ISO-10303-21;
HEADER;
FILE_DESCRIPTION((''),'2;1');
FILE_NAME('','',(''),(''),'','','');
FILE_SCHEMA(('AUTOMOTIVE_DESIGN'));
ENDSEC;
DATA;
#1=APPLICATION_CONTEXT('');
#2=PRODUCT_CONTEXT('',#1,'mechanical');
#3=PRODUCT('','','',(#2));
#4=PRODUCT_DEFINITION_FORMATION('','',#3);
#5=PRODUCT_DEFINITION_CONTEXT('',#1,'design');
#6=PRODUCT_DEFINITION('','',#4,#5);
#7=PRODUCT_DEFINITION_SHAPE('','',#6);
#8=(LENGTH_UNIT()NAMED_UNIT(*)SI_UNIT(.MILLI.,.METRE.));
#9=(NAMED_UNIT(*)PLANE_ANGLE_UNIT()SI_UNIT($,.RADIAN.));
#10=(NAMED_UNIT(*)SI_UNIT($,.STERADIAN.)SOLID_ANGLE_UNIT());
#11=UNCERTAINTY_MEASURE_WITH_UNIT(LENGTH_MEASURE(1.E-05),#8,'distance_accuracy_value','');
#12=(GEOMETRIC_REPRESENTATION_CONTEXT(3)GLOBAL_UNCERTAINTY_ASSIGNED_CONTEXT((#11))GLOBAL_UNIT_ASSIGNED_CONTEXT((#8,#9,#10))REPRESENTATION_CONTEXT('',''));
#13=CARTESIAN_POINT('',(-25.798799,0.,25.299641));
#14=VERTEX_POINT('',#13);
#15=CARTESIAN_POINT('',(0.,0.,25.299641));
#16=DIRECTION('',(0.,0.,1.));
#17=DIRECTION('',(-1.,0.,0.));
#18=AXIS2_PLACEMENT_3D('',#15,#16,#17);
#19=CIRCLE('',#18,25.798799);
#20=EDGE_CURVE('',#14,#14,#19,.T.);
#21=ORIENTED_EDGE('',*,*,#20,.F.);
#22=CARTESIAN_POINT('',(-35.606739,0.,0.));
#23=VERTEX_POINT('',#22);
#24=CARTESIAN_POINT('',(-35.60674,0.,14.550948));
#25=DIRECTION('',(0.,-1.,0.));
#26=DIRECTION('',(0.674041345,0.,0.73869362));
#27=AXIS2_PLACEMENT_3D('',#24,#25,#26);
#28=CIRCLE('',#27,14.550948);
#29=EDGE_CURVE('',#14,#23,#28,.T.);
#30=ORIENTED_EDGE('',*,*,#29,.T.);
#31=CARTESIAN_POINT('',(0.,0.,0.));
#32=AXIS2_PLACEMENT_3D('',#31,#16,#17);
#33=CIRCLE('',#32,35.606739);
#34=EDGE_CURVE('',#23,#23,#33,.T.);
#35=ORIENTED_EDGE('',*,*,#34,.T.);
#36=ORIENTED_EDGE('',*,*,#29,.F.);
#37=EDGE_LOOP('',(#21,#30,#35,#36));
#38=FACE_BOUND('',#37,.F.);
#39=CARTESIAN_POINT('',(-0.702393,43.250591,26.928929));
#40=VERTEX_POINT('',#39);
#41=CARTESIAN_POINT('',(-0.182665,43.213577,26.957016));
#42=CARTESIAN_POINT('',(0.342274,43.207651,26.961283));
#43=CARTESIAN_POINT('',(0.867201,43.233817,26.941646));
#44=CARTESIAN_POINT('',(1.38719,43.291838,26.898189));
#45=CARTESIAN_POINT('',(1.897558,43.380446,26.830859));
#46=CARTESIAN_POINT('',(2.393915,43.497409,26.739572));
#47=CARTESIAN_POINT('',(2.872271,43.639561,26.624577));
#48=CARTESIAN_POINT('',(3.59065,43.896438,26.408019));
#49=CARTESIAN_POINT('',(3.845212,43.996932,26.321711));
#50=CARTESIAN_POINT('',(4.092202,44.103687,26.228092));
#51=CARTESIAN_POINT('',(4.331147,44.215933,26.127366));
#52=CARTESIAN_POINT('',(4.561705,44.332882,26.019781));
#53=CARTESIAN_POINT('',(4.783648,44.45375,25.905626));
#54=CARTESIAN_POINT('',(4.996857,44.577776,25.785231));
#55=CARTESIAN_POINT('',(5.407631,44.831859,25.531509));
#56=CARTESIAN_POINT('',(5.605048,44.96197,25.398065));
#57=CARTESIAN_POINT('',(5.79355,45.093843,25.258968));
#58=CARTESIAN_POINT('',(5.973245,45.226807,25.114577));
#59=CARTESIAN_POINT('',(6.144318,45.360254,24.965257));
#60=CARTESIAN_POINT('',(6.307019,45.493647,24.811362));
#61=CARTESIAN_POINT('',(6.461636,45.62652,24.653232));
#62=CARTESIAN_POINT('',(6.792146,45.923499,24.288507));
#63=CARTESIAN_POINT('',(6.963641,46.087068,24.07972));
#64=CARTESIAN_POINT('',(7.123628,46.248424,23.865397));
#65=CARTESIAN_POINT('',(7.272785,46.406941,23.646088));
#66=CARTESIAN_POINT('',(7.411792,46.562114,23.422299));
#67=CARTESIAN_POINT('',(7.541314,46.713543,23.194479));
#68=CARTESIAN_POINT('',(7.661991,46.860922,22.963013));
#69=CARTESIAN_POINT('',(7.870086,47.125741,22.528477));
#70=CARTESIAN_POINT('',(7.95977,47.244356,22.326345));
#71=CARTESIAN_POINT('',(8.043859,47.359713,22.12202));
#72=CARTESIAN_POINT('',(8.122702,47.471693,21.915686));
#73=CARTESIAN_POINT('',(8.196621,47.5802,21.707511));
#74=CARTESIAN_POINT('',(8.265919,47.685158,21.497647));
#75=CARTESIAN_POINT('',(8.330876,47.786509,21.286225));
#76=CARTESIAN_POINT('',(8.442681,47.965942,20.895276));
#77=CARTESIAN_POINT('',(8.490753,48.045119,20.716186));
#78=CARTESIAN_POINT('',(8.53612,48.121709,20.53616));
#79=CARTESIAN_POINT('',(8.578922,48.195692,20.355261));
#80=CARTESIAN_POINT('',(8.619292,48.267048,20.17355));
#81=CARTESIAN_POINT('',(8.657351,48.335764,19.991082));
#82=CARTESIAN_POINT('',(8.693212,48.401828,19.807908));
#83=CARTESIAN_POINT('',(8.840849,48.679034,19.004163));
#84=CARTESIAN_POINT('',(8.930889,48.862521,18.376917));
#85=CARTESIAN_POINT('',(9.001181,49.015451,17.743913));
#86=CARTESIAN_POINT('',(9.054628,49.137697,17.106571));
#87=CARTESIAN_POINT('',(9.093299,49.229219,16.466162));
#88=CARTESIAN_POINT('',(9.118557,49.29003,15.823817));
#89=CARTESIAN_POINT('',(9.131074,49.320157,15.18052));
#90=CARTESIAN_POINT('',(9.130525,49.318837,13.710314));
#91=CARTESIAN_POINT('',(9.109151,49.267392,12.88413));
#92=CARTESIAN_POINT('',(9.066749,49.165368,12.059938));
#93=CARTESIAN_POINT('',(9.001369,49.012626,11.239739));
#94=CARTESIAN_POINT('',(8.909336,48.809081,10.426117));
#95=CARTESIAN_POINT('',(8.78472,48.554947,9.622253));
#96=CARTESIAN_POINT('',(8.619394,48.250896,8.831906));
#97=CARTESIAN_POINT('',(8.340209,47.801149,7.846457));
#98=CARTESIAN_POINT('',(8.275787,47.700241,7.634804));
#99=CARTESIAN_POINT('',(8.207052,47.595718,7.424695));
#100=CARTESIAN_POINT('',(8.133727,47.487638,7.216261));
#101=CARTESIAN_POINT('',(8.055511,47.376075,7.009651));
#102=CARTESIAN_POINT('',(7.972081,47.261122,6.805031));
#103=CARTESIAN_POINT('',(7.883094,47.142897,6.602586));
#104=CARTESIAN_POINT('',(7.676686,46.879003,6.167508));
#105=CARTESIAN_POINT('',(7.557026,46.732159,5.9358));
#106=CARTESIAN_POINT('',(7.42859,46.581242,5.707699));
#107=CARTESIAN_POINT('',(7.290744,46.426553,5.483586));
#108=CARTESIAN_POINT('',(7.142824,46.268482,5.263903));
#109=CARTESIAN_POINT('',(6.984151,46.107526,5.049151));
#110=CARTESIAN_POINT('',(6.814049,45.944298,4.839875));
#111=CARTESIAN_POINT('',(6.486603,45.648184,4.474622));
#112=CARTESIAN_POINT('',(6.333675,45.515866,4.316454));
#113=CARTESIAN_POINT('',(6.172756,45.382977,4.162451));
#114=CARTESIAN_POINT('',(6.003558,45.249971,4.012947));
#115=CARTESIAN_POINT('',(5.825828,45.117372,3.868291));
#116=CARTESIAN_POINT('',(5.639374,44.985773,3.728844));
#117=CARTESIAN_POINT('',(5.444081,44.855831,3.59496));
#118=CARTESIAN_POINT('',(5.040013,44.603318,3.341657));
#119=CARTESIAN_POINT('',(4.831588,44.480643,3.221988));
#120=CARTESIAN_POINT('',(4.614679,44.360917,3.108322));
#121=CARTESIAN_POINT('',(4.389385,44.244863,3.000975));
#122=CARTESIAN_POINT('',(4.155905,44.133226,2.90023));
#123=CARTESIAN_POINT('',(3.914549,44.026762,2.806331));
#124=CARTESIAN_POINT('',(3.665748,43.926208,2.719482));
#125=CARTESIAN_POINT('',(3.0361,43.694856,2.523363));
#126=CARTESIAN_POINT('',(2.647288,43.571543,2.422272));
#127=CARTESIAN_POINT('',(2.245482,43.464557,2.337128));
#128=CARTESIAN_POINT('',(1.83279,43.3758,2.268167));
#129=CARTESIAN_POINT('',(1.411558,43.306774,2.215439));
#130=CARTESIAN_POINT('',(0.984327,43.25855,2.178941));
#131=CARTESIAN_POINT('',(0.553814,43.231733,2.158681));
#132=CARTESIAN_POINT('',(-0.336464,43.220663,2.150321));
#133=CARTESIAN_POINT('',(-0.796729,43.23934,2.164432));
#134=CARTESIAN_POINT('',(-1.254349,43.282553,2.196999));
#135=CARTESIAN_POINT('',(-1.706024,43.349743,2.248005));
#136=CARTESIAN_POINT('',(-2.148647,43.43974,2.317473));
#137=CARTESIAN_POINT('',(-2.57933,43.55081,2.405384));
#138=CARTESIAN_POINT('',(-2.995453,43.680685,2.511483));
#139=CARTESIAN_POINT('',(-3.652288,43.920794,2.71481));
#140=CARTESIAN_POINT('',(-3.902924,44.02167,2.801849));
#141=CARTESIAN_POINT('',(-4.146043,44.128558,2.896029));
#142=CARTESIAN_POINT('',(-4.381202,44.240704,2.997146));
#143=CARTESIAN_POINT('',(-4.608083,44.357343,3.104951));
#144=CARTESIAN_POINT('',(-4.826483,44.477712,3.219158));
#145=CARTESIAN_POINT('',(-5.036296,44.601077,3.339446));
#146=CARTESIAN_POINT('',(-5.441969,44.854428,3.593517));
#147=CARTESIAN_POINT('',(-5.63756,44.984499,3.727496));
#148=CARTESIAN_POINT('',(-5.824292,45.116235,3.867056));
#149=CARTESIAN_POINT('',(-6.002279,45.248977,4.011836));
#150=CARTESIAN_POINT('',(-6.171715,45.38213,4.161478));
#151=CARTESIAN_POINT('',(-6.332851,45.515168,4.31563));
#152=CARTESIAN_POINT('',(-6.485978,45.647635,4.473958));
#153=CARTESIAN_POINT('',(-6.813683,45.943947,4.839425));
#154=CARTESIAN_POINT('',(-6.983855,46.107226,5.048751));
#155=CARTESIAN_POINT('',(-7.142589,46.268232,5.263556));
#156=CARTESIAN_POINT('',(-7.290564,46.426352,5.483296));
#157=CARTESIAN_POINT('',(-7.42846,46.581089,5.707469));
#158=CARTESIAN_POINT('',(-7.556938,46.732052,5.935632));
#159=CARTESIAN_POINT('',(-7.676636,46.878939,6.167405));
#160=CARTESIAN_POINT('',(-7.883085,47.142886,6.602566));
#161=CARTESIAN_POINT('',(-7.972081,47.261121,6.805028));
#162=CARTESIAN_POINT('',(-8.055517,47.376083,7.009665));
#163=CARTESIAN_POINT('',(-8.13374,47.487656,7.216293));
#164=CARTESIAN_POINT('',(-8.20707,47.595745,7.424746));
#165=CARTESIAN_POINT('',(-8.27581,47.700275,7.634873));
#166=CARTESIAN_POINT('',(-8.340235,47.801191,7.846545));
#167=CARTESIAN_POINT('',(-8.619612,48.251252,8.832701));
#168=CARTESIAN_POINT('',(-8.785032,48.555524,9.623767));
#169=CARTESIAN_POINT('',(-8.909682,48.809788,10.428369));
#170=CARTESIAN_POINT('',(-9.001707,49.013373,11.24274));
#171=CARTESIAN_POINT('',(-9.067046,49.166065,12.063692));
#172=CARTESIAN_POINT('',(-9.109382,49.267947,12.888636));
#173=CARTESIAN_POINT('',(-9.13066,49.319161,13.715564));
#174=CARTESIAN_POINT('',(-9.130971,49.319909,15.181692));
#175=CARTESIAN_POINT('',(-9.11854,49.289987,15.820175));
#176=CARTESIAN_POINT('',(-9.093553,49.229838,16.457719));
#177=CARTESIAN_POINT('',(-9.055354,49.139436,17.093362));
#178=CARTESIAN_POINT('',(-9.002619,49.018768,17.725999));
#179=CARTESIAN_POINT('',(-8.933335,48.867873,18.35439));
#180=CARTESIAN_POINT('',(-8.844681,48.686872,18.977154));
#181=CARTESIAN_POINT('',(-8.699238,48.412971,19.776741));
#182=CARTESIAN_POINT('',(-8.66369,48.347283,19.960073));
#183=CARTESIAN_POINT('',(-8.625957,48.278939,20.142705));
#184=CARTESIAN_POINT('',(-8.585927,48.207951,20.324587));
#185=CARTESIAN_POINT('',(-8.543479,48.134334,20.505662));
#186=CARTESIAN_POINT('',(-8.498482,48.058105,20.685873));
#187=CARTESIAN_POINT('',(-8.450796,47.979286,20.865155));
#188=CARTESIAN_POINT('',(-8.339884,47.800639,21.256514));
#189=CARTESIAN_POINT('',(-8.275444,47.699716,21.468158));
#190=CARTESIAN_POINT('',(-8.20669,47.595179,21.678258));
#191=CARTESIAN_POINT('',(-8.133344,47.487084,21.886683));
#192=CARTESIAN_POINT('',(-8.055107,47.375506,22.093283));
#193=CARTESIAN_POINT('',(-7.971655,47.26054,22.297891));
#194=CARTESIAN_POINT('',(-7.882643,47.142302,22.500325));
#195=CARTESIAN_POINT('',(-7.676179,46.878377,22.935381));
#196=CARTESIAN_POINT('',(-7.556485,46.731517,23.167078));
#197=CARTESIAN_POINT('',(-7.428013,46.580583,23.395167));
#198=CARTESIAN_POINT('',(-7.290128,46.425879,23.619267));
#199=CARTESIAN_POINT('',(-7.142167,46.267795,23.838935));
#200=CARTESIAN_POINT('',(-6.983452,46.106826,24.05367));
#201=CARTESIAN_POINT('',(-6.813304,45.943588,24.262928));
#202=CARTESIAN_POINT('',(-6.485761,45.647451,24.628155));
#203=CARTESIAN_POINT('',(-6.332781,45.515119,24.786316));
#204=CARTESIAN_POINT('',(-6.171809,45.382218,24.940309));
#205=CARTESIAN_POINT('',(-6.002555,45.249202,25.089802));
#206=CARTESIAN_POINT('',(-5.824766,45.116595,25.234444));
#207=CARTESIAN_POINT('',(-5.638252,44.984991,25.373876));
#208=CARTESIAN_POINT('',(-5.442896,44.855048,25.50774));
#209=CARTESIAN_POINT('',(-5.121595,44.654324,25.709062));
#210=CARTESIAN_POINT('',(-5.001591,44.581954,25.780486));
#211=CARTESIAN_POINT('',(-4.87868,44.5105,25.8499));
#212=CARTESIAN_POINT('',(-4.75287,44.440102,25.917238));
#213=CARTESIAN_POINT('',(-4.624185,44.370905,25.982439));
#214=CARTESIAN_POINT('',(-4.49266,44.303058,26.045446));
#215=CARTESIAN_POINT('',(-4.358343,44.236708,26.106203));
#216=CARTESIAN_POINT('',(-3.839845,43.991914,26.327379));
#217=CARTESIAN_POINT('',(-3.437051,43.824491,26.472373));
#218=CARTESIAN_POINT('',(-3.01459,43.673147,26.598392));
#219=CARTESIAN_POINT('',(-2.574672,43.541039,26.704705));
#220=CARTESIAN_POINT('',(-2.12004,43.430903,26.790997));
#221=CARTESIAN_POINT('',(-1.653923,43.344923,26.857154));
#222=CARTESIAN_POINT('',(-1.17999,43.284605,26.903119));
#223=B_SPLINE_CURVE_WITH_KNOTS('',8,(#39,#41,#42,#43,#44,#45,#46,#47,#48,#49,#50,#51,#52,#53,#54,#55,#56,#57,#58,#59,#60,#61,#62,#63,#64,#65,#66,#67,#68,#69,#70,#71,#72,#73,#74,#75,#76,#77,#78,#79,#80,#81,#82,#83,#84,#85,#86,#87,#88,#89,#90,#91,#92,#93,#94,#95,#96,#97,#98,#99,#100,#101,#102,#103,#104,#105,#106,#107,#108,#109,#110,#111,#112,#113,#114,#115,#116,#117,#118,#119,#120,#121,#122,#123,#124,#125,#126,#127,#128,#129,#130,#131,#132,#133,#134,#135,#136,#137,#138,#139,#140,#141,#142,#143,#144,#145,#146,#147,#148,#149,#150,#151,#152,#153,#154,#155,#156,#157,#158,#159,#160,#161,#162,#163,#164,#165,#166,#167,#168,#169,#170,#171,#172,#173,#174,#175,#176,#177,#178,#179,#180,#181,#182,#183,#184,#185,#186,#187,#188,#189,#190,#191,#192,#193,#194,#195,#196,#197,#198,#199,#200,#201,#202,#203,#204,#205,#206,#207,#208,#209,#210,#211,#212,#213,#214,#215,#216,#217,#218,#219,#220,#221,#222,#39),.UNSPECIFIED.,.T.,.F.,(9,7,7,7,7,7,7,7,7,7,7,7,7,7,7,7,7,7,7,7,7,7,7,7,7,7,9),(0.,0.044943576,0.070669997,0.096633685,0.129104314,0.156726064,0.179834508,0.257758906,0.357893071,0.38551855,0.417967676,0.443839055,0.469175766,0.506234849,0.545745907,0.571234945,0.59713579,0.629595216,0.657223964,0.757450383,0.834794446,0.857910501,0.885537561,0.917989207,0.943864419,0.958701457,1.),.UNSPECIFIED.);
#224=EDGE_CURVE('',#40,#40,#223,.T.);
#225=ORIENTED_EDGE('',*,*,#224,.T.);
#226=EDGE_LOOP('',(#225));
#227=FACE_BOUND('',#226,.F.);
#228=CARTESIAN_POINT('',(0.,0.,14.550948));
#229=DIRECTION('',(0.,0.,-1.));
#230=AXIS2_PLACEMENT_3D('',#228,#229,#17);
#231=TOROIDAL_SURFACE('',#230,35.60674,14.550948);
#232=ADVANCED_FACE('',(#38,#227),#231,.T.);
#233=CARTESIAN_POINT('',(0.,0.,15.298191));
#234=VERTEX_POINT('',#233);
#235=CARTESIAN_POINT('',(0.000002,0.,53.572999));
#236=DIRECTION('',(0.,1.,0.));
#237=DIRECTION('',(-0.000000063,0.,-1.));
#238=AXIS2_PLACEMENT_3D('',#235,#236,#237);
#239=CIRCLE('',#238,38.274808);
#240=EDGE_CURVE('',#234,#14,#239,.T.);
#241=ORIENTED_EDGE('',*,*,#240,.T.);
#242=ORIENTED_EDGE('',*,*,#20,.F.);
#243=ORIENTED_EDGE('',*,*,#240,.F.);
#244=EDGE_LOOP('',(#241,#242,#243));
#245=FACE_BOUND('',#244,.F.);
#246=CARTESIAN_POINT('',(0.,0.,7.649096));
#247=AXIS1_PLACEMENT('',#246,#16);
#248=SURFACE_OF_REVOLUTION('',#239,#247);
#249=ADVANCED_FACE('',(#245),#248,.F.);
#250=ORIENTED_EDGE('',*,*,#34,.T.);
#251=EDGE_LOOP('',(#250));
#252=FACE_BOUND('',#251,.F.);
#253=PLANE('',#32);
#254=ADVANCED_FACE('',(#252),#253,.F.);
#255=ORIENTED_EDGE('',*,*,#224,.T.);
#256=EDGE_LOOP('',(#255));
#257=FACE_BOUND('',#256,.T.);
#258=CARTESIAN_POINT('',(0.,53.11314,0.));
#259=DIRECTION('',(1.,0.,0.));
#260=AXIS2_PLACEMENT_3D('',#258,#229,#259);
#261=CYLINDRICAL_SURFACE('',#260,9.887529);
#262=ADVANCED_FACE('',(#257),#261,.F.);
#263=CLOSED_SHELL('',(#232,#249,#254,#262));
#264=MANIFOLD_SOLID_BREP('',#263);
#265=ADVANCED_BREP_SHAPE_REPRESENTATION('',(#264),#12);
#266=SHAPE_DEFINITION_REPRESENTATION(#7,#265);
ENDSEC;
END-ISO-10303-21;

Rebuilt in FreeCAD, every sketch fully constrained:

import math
import FreeCAD as App
import Part
import Sketcher

V = App.Vector
Q = App.Units.Quantity

doc = App.newDocument("Part")
body = doc.addObject("PartDesign::Body", "Body")

sketch1 = body.newObject("Sketcher::SketchObject", "Sketch")
sketch1.AttachmentSupport = (doc.getObject("XZ_Plane"), [""])
sketch1.MapMode = "FlatFace"
sketch1.addGeometry(Part.ArcOfCircle(Part.Circle(V(0.000002, 53.572999, 0), V(0, 0, 1), 38.274808), math.radians(-132.379746), math.radians(-90.000004)), False)
sketch1.addGeometry(Part.ArcOfCircle(Part.Circle(V(-35.60674, 14.550948, 0), V(0, 0, 1), 14.550948), math.radians(47.620251), math.radians(270.000003)), False)
sketch1.addGeometry(Part.LineSegment(V(-35.606739, 0, 0), V(0, 0, 0)), False)
sketch1.addGeometry(Part.LineSegment(V(0, 0, 0), V(0, 15.298191, 0)), False)
sketch1.addConstraint(Sketcher.Constraint("Tangent", 0, 1, 1, 1))
sketch1.addConstraint(Sketcher.Constraint("Tangent", 1, 2, 2, 1))
sketch1.addConstraint(Sketcher.Constraint("Coincident", 2, 2, 3, 1))
sketch1.addConstraint(Sketcher.Constraint("Coincident", 3, 2, 0, 2))
sketch1.addConstraint(Sketcher.Constraint("Horizontal", 2))
sketch1.addConstraint(Sketcher.Constraint("Vertical", 3))
sketch1.addConstraint(Sketcher.Constraint("Coincident", 2, 2, -1, 1))
sketch1.addConstraint(Sketcher.Constraint("Radius", 1, Q("14.550948 mm")))
sketch1.addConstraint(Sketcher.Constraint("DistanceY", -1, 1, 0, 3, Q("53.572999 mm")))
sketch1.addConstraint(Sketcher.Constraint("Radius", 0, Q("38.274808 mm")))
sketch1.addConstraint(Sketcher.Constraint("DistanceX", 2, 1, 2, 2, Q("35.606739 mm")))
revolution = body.newObject("PartDesign::Revolution", "Revolution")
revolution.Profile = sketch1
revolution.ReferenceAxis = (sketch1, ["V_Axis"])
revolution.Angle = 360

sketch2 = body.newObject("Sketcher::SketchObject", "Sketch001")
sketch2.AttachmentSupport = (doc.getObject("XY_Plane"), [""])
sketch2.MapMode = "FlatFace"
sketch2.addGeometry(Part.Circle(V(0, 53.11314, 0), V(0, 0, 1), 9.887529), False)
sketch2.addConstraint(Sketcher.Constraint("PointOnObject", 0, 3, -2))
sketch2.addConstraint(Sketcher.Constraint("Diameter", 0, Q("19.775058 mm")))
sketch2.addConstraint(Sketcher.Constraint("DistanceY", -1, 1, 0, 3, Q("53.11314 mm")))
pocket1 = body.newObject("PartDesign::Pocket", "Pocket")
pocket1.Profile = sketch2
pocket1.Length = 38.9
pocket1.Reversed = True

doc.recompute()
